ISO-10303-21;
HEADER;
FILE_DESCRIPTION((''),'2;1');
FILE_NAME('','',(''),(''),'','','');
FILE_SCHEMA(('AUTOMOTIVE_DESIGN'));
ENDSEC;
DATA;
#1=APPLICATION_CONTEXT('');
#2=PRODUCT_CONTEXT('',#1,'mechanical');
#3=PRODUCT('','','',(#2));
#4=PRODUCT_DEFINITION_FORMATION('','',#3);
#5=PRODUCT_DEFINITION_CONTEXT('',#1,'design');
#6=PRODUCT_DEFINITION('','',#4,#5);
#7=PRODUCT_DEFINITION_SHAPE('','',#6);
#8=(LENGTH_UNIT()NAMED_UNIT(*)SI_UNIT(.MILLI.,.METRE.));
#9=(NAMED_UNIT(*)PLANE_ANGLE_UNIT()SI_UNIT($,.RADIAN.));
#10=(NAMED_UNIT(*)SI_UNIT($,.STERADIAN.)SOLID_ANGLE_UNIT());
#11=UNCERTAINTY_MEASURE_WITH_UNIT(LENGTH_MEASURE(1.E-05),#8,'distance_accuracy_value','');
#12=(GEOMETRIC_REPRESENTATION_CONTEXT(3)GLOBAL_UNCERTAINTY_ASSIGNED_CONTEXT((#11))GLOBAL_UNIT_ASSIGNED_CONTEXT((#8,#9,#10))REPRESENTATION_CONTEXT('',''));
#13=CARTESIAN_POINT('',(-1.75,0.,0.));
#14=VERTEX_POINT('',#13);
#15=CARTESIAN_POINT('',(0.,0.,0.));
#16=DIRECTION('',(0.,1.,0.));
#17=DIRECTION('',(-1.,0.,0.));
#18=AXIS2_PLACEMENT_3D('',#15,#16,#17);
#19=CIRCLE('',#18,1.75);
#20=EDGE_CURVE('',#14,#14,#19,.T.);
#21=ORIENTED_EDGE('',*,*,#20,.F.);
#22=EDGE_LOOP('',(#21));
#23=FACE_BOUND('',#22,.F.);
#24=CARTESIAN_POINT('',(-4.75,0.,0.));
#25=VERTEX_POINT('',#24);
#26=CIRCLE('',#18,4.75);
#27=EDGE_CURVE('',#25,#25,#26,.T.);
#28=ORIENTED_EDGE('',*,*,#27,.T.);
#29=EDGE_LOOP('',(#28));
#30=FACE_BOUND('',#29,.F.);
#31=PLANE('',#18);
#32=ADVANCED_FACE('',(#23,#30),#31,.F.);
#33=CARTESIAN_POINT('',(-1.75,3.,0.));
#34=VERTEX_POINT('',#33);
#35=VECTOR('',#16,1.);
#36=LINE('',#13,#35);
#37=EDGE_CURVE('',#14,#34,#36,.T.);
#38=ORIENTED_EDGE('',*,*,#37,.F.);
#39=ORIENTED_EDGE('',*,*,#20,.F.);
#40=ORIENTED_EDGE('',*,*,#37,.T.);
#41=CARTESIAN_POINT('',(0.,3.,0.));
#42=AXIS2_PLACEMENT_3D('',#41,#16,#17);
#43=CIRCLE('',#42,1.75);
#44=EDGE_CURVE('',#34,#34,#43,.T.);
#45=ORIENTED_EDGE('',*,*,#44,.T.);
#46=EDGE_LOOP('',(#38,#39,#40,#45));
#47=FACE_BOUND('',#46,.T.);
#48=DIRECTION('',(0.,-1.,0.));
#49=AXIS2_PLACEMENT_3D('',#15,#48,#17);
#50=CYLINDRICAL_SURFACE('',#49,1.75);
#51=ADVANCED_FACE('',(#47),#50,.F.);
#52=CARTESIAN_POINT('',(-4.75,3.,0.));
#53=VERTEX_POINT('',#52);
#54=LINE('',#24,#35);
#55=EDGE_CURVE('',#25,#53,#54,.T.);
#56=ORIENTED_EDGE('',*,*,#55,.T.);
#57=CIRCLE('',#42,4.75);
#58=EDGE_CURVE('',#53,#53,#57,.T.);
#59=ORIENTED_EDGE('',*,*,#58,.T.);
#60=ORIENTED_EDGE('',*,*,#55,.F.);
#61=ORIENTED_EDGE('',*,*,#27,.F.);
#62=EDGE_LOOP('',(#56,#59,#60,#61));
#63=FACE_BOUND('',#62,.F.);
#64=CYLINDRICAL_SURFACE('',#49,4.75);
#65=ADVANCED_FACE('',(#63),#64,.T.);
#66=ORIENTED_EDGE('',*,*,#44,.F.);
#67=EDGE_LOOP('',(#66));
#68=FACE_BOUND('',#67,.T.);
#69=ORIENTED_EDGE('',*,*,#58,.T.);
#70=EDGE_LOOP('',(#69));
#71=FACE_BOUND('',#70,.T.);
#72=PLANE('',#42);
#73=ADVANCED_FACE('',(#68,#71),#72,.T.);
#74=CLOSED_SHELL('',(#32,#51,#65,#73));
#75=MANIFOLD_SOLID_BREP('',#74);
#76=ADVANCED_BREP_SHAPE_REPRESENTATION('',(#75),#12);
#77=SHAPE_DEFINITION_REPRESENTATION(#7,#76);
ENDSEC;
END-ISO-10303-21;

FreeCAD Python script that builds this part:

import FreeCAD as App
import Part
import Sketcher

V = App.Vector
Q = App.Units.Quantity

doc = App.newDocument("Part")
params = doc.addObject("Spreadsheet::Sheet", "Params")
for row, (alias, value) in enumerate([
    ("sketch1_diameter", "3.5 mm"),
    ("sketch1_diameter2", "9.5 mm"),
    ("pad1_length", "3 mm"),
], start=1):
    params.set(f"A{row}", alias)
    params.set(f"B{row}", "=" + value)
    params.setAlias(f"B{row}", alias)

body = doc.addObject("PartDesign::Body", "Body")

# Sketch on XZ plane
sketch1 = body.newObject("Sketcher::SketchObject", "Sketch")
sketch1.AttachmentSupport = (doc.getObject("XZ_Plane"), [""])
sketch1.MapMode = "FlatFace"
sketch1.addGeometry(Part.Circle(V(0, 0, 0), V(0, 0, 1), 4.75), False)
sketch1.addGeometry(Part.Circle(V(0, 0, 0), V(0, 0, 1), 1.75), False)
sketch1.addConstraint(Sketcher.Constraint("Coincident", 0, 3, -1, 1))
sketch1.addConstraint(Sketcher.Constraint("Coincident", 1, 3, -1, 1))
sketch1.addConstraint(Sketcher.Constraint("Diameter", 1, Q("3.5 mm")))
sketch1.addConstraint(Sketcher.Constraint("Diameter", 0, Q("9.5 mm")))
sketch1.setExpression("Constraints[2]", "Params.sketch1_diameter")
sketch1.setExpression("Constraints[3]", "Params.sketch1_diameter2")
pad1 = body.newObject("PartDesign::Pad", "Pad")
pad1.Profile = sketch1
pad1.setExpression("Length", "Params.pad1_length")
pad1.Reversed = True

doc.recompute()
